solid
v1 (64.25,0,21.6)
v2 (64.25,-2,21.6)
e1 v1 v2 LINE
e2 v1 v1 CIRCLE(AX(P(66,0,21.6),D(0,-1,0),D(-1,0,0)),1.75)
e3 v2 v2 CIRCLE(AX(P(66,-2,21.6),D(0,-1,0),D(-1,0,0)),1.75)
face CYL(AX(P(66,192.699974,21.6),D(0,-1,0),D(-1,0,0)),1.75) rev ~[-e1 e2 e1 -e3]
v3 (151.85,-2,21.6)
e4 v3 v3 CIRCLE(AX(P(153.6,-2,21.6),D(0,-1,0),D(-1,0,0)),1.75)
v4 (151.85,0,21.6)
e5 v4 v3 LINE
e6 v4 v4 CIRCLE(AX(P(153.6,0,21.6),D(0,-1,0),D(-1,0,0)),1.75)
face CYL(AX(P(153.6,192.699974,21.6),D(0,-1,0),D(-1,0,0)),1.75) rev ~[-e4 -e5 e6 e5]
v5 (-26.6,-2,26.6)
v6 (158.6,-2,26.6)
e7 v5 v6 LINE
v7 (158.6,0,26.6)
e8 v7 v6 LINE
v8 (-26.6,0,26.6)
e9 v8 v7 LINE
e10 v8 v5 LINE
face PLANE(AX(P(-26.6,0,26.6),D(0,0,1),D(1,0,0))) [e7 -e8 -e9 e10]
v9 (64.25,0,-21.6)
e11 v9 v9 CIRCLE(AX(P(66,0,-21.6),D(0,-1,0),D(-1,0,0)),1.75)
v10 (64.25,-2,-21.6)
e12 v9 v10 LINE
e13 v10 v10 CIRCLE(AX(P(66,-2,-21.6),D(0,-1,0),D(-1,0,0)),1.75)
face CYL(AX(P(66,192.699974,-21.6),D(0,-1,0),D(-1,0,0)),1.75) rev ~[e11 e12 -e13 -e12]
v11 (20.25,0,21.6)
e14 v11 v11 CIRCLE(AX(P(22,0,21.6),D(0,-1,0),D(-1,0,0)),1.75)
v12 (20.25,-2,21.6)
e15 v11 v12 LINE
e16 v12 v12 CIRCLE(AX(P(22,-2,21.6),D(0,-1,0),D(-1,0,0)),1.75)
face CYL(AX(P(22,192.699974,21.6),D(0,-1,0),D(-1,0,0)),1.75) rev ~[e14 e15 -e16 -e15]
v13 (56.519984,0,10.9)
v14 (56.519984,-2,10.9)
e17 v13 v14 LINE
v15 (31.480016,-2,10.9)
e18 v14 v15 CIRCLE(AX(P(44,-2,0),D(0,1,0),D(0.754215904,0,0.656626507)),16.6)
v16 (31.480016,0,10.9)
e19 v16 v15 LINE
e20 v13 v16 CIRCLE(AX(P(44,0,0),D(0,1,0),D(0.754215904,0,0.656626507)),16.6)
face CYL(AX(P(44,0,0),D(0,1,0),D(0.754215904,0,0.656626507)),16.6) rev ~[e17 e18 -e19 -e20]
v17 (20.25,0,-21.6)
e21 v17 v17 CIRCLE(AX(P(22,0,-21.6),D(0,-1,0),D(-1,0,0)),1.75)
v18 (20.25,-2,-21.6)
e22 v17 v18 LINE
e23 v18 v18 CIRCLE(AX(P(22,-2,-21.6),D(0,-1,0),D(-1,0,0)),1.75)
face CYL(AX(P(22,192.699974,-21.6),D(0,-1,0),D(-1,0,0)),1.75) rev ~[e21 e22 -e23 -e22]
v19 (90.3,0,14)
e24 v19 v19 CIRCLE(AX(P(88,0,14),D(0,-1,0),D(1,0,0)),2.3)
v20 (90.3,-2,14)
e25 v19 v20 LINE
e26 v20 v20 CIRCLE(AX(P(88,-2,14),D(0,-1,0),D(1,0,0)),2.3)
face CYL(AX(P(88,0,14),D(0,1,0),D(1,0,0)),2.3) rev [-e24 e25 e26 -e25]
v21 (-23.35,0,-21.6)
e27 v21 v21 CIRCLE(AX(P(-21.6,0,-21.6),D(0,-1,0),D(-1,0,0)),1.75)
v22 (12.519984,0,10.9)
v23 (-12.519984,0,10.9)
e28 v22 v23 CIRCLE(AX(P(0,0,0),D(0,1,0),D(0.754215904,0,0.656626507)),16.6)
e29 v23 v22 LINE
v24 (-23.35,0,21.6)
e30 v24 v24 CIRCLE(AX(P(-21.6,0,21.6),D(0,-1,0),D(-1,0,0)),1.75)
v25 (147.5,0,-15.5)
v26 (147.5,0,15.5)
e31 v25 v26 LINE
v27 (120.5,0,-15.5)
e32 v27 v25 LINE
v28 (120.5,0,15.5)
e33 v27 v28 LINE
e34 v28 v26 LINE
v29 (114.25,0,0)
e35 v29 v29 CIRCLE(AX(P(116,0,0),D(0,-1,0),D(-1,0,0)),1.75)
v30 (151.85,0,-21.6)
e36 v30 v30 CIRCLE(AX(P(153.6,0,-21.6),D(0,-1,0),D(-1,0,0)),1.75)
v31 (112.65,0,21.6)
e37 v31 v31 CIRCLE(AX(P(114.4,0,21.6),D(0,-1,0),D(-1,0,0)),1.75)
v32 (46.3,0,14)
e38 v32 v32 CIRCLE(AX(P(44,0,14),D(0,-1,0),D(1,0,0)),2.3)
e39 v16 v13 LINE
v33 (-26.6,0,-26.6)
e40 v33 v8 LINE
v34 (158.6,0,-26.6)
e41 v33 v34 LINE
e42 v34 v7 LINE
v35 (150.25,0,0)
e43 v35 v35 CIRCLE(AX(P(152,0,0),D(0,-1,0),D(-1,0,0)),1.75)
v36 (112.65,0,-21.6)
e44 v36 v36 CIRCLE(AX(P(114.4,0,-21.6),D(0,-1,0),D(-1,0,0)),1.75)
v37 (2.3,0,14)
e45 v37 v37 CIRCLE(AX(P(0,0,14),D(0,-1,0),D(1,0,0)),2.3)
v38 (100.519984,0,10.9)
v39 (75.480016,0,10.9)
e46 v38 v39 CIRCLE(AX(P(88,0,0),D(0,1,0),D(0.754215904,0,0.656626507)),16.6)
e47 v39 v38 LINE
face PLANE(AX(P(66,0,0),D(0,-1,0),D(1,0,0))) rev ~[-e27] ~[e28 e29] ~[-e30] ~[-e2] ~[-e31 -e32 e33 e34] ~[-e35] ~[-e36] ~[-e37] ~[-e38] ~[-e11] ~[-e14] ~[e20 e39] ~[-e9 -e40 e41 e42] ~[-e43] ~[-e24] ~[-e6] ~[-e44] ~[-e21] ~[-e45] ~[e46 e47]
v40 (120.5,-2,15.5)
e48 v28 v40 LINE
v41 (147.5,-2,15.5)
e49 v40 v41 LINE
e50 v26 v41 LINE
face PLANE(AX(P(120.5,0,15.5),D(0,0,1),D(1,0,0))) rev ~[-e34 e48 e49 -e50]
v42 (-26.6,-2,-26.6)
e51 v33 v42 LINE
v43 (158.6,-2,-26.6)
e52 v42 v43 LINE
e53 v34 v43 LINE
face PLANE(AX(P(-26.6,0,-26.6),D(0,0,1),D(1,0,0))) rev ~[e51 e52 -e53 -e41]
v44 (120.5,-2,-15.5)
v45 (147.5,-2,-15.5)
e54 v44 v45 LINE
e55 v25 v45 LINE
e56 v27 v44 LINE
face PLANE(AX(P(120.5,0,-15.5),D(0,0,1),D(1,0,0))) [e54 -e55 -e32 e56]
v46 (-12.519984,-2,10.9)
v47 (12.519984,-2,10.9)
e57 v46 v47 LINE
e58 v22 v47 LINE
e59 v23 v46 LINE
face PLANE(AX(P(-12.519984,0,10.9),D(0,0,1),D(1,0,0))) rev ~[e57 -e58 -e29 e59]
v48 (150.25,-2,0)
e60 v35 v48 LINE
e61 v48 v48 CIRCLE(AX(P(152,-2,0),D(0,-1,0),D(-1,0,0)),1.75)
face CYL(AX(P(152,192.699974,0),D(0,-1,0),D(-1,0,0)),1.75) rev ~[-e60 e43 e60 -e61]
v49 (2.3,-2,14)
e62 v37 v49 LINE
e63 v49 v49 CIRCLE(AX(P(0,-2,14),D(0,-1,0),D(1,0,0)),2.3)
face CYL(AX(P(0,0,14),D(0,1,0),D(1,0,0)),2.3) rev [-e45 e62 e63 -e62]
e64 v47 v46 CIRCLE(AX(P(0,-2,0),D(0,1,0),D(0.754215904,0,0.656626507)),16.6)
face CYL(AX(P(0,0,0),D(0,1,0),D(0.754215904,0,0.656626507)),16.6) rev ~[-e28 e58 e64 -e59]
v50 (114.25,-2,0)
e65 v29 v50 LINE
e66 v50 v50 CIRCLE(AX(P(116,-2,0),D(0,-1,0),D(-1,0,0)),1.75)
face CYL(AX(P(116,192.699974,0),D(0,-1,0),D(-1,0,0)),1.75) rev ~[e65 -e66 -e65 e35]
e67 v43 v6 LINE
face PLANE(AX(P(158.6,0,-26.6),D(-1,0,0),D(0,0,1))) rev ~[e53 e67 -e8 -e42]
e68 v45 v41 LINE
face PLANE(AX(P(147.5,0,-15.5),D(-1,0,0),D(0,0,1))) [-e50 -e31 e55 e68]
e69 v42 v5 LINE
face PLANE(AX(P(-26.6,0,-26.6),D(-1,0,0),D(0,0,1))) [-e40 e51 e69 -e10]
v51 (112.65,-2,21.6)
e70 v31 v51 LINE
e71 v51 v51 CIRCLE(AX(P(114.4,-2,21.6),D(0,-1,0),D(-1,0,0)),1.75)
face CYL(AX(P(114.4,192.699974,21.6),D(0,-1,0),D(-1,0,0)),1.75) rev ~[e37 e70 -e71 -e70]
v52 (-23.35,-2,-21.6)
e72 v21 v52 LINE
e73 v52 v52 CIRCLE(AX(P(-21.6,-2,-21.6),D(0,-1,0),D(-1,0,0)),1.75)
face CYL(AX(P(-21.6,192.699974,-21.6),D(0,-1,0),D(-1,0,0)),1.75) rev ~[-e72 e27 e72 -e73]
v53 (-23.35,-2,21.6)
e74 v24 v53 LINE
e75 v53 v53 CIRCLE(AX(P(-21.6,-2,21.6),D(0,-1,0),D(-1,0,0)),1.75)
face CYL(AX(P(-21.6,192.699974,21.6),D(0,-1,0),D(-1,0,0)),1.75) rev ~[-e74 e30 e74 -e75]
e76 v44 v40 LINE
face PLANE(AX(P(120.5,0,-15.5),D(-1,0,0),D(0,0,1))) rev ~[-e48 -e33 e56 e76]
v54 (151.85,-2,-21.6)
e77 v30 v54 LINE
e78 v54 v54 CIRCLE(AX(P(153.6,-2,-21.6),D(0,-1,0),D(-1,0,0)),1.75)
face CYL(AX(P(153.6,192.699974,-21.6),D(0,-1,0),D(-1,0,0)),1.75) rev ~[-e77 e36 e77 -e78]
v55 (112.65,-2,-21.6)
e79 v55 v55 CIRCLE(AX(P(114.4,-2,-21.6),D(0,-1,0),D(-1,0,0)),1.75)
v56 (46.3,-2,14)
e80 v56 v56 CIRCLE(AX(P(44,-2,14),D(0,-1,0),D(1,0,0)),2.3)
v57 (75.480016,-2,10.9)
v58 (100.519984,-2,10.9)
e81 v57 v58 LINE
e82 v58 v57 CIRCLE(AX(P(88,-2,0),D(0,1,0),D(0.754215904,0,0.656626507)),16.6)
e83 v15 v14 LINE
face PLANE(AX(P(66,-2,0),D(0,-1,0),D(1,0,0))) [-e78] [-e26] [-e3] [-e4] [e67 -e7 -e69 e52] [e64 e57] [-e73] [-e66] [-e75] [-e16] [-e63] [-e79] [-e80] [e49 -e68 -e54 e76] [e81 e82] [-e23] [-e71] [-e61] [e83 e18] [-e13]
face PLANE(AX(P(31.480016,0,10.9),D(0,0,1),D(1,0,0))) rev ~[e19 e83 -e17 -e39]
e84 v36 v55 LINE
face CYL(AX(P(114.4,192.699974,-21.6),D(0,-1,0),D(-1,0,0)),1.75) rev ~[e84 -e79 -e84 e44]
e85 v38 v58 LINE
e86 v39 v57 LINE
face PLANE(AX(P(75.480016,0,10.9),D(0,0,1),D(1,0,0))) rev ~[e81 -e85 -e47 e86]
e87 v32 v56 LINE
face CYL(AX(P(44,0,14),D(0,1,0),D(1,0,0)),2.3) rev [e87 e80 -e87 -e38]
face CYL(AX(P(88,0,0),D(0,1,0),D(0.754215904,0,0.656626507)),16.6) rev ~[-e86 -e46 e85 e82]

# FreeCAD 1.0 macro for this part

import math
import FreeCAD as App
import Part
import Sketcher

V = App.Vector

doc = App.newDocument("Part")
params = doc.addObject("Spreadsheet::Sheet", "Params")
for row, (alias, value) in enumerate([
    ("sketch1_diameter", "4.6 mm"),
    ("sketch1_radius", "16.6 mm"),
    ("sketch1_width", "27 mm"),
    ("sketch1_height", "31 mm"),
    ("sketch1_width2", "185.2 mm"),
    ("pad1_length", "2 mm"),
    ("sketch2_diameter", "3.5 mm"),
    ("hole_diameter", "3.5 mm"),
], start=1):
    params.set(f"A{row}", alias)
    params.set(f"B{row}", "=" + value)
    params.setAlias(f"B{row}", alias)

body = doc.addObject("PartDesign::Body", "Body")

# Sketch on XZ plane
sketch1 = body.newObject("Sketcher::SketchObject", "Sketch")
sketch1.AttachmentSupport = (doc.getObject("XZ_Plane"), [""])
sketch1.MapMode = "FlatFace"
sketch1.addGeometry([
    Part.LineSegment(V(-26.6, 26.6, 0), V(-26.6, -26.6, 0)),  # 0
    Part.LineSegment(V(-26.6, -26.6, 0), V(158.6, -26.6, 0)),  # 1
    Part.LineSegment(V(158.6, -26.6, 0), V(158.6, 26.6, 0)),  # 2
    Part.LineSegment(V(158.6, 26.6, 0), V(-26.6, 26.6, 0)),  # 3
    Part.LineSegment(V(-12.5, 10.9, 0), V(12.5, 10.9, 0)),  # 4
    Part.ArcOfCircle(Part.Circle(V(0, 0, 0), V(0, 0, 1), 16.6), math.radians(139), math.radians(401)),  # 5
    Part.LineSegment(V(31.5, 10.9, 0), V(56.5, 10.9, 0)),  # 6
    Part.ArcOfCircle(Part.Circle(V(44, 0, 0), V(0, 0, 1), 16.6), math.radians(139), math.radians(401)),  # 7
    Part.LineSegment(V(75.5, 10.9, 0), V(100.5, 10.9, 0)),  # 8
    Part.ArcOfCircle(Part.Circle(V(88, 0, 0), V(0, 0, 1), 16.6), math.radians(139), math.radians(401)),  # 9
    Part.Circle(V(0, 14, 0), V(0, 0, 1), 2.3),  # 10
    Part.Circle(V(44, 14, 0), V(0, 0, 1), 2.3),  # 11
    Part.LineSegment(V(147.5, -15.5, 0), V(120.5, -15.5, 0)),  # 12
    Part.LineSegment(V(120.5, -15.5, 0), V(120.5, 15.5, 0)),  # 13
    Part.LineSegment(V(120.5, 15.5, 0), V(147.5, 15.5, 0)),  # 14
    Part.LineSegment(V(147.5, 15.5, 0), V(147.5, -15.5, 0)),  # 15
    Part.Circle(V(88, 14, 0), V(0, 0, 1), 2.3),  # 16
], False)
sketch1.addConstraint([
    Sketcher.Constraint("Coincident", 0, 2, 1, 1),
    Sketcher.Constraint("Coincident", 1, 2, 2, 1),
    Sketcher.Constraint("Coincident", 2, 2, 3, 1),
    Sketcher.Constraint("Coincident", 3, 2, 0, 1),
    Sketcher.Constraint("Coincident", 4, 1, 5, 1),
    Sketcher.Constraint("Coincident", 5, 2, 4, 2),
    Sketcher.Constraint("Coincident", 6, 1, 7, 1),
    Sketcher.Constraint("Coincident", 7, 2, 6, 2),
    Sketcher.Constraint("Coincident", 8, 1, 9, 1),
    Sketcher.Constraint("Coincident", 9, 2, 8, 2),
    Sketcher.Constraint("Coincident", 12, 2, 13, 1),
    Sketcher.Constraint("Coincident", 13, 2, 14, 1),
    Sketcher.Constraint("Coincident", 14, 2, 15, 1),
    Sketcher.Constraint("Coincident", 15, 2, 12, 1),
    Sketcher.Constraint("Vertical", 0),
    Sketcher.Constraint("Horizontal", 1),
    Sketcher.Constraint("Vertical", 2),
    Sketcher.Constraint("Horizontal", 3),
    Sketcher.Constraint("Horizontal", 4),
    Sketcher.Constraint("Horizontal", 6),
    Sketcher.Constraint("Horizontal", 8),
    Sketcher.Constraint("Horizontal", 12),
    Sketcher.Constraint("Vertical", 13),
    Sketcher.Constraint("Horizontal", 14),
    Sketcher.Constraint("Vertical", 15),
    Sketcher.Constraint("Coincident", 5, 3, -1, 1),
    Sketcher.Constraint("Equal", 5, 7),
    Sketcher.Constraint("Equal", 7, 9),
    Sketcher.Constraint("Equal", 10, 11),
    Sketcher.Constraint("Equal", 11, 16),
    Sketcher.Constraint("PointOnObject", 7, 3, -1),
    Sketcher.Constraint("PointOnObject", 9, 3, -1),
    Sketcher.Constraint("PointOnObject", 10, 3, -2),
    Sketcher.Constraint("Horizontal", 10, 3, 11, 3),
    Sketcher.Constraint("Horizontal", 11, 3, 16, 3),
    Sketcher.Constraint("Horizontal", 5, 2, 6, 1),
    Sketcher.Constraint("Horizontal", 7, 2, 8, 1),
    Sketcher.Constraint("Vertical", 7, 3, 11, 3),
    Sketcher.Constraint("Vertical", 9, 3, 16, 3),
    Sketcher.Constraint("Diameter", 10, 4.6),
    Sketcher.Constraint("Radius", 5, 16.6),
    Sketcher.Constraint("DistanceX", 12, 2, 12, 1, 27.0),
    Sketcher.Constraint("DistanceY", 13, 1, 13, 2, 31.0),
    Sketcher.Constraint("DistanceX", 1, 1, 1, 2, 185.2),
    Sketcher.Constraint("DistanceY", 0, 2, 0, 1, 53.2),
    Sketcher.Constraint("DistanceX", -1, 1, 7, 3, 44.0),
    Sketcher.Constraint("DistanceX", -1, 1, 9, 3, 88.0),
    Sketcher.Constraint("DistanceY", -1, 1, 10, 3, 14.0),
    Sketcher.Constraint("DistanceX", 0, 2, -1, 1, 26.6),
    Sketcher.Constraint("DistanceY", 0, 2, -1, 1, 26.6),
    Sketcher.Constraint("DistanceY", -1, 1, 4, 1, 10.9),
    Sketcher.Constraint("DistanceX", -1, 1, 12, 2, 120.5),
    Sketcher.Constraint("DistanceY", 12, 2, -1, 1, 15.5),
])
sketch1.setExpression("Constraints[39]", "Params.sketch1_diameter")
sketch1.setExpression("Constraints[40]", "Params.sketch1_radius")
sketch1.setExpression("Constraints[41]", "Params.sketch1_width")
sketch1.setExpression("Constraints[42]", "Params.sketch1_height")
sketch1.setExpression("Constraints[43]", "Params.sketch1_width2")
pad1 = body.newObject("PartDesign::Pad", "Pad")
pad1.Profile = sketch1
pad1.setExpression("Length", "Params.pad1_length")

# Sketch on XZ plane
sketch2 = body.newObject("Sketcher::SketchObject", "Sketch001")
sketch2.AttachmentSupport = (doc.getObject("XZ_Plane"), [""])
sketch2.MapMode = "FlatFace"
sketch2.addGeometry([
    Part.Circle(V(-21.6, -21.6, 0), V(0, 0, 1), 1.8),  # 0
    Part.Circle(V(-21.6, 21.6, 0), V(0, 0, 1), 1.8),  # 1
    Part.Circle(V(153.6, -21.6, 0), V(0, 0, 1), 1.8),  # 2
    Part.Circle(V(153.6, 21.6, 0), V(0, 0, 1), 1.8),  # 3
    Part.Circle(V(22, -21.6, 0), V(0, 0, 1), 1.8),  # 4
    Part.Circle(V(66, -21.6, 0), V(0, 0, 1), 1.8),  # 5
    Part.Circle(V(114.4, -21.6, 0), V(0, 0, 1), 1.8),  # 6
    Part.Circle(V(114.4, 21.6, 0), V(0, 0, 1), 1.8),  # 7
    Part.Circle(V(66, 21.6, 0), V(0, 0, 1), 1.8),  # 8
    Part.Circle(V(22, 21.6, 0), V(0, 0, 1), 1.8),  # 9
    Part.Circle(V(116, 0, 0), V(0, 0, 1), 1.8),  # 10
    Part.Circle(V(152, 0, 0), V(0, 0, 1), 1.8),  # 11
], False)
sketch2.addConstraint([
    Sketcher.Constraint("Equal", 0, 1),
    Sketcher.Constraint("Equal", 1, 2),
    Sketcher.Constraint("Equal", 2, 3),
    Sketcher.Constraint("Equal", 3, 4),
    Sketcher.Constraint("Equal", 4, 5),
    Sketcher.Constraint("Equal", 5, 6),
    Sketcher.Constraint("Equal", 6, 7),
    Sketcher.Constraint("Equal", 7, 8),
    Sketcher.Constraint("Equal", 8, 9),
    Sketcher.Constraint("Equal", 9, 10),
    Sketcher.Constraint("Equal", 10, 11),
    Sketcher.Constraint("Symmetric", 0, 3, 1, 3, -1),
    Sketcher.Constraint("Symmetric", 2, 3, 3, 3, -1),
    Sketcher.Constraint("Symmetric", 6, 3, 7, 3, -1),
    Sketcher.Constraint("Symmetric", 5, 3, 8, 3, -1),
    Sketcher.Constraint("Symmetric", 4, 3, 9, 3, -1),
    Sketcher.Constraint("PointOnObject", 10, 3, -1),
    Sketcher.Constraint("PointOnObject", 11, 3, -1),
    Sketcher.Constraint("Horizontal", 0, 3, 2, 3),
    Sketcher.Constraint("Horizontal", 2, 3, 4, 3),
    Sketcher.Constraint("Horizontal", 4, 3, 5, 3),
    Sketcher.Constraint("Horizontal", 5, 3, 6, 3),
    Sketcher.Constraint("Diameter", 0, 3.5),
    Sketcher.Constraint("DistanceX", -1, 1, 4, 3, 22.0),
    Sketcher.Constraint("DistanceX", -1, 1, 5, 3, 66.0),
    Sketcher.Constraint("DistanceX", -1, 1, 10, 3, 116.0),
    Sketcher.Constraint("DistanceX", -1, 1, 11, 3, 152.0),
    Sketcher.Constraint("DistanceX", 0, 3, 6, 3, 136.0),
    Sketcher.Constraint("DistanceX", 0, 3, -1, 1, 21.6),
    Sketcher.Constraint("DistanceY", 0, 3, -1, 1, 21.6),
    Sketcher.Constraint("DistanceX", -1, 1, 2, 3, 153.6),
])
sketch2.setExpression("Constraints[22]", "Params.sketch2_diameter")
doc.recompute()
hole = body.newObject("PartDesign::Hole", "Hole")
hole.Profile = sketch2
hole.ThreadType = "None"
hole.setExpression("Diameter", "Params.hole_diameter")
hole.DepthType = "ThroughAll"
hole.Reversed = True

doc.recompute()
